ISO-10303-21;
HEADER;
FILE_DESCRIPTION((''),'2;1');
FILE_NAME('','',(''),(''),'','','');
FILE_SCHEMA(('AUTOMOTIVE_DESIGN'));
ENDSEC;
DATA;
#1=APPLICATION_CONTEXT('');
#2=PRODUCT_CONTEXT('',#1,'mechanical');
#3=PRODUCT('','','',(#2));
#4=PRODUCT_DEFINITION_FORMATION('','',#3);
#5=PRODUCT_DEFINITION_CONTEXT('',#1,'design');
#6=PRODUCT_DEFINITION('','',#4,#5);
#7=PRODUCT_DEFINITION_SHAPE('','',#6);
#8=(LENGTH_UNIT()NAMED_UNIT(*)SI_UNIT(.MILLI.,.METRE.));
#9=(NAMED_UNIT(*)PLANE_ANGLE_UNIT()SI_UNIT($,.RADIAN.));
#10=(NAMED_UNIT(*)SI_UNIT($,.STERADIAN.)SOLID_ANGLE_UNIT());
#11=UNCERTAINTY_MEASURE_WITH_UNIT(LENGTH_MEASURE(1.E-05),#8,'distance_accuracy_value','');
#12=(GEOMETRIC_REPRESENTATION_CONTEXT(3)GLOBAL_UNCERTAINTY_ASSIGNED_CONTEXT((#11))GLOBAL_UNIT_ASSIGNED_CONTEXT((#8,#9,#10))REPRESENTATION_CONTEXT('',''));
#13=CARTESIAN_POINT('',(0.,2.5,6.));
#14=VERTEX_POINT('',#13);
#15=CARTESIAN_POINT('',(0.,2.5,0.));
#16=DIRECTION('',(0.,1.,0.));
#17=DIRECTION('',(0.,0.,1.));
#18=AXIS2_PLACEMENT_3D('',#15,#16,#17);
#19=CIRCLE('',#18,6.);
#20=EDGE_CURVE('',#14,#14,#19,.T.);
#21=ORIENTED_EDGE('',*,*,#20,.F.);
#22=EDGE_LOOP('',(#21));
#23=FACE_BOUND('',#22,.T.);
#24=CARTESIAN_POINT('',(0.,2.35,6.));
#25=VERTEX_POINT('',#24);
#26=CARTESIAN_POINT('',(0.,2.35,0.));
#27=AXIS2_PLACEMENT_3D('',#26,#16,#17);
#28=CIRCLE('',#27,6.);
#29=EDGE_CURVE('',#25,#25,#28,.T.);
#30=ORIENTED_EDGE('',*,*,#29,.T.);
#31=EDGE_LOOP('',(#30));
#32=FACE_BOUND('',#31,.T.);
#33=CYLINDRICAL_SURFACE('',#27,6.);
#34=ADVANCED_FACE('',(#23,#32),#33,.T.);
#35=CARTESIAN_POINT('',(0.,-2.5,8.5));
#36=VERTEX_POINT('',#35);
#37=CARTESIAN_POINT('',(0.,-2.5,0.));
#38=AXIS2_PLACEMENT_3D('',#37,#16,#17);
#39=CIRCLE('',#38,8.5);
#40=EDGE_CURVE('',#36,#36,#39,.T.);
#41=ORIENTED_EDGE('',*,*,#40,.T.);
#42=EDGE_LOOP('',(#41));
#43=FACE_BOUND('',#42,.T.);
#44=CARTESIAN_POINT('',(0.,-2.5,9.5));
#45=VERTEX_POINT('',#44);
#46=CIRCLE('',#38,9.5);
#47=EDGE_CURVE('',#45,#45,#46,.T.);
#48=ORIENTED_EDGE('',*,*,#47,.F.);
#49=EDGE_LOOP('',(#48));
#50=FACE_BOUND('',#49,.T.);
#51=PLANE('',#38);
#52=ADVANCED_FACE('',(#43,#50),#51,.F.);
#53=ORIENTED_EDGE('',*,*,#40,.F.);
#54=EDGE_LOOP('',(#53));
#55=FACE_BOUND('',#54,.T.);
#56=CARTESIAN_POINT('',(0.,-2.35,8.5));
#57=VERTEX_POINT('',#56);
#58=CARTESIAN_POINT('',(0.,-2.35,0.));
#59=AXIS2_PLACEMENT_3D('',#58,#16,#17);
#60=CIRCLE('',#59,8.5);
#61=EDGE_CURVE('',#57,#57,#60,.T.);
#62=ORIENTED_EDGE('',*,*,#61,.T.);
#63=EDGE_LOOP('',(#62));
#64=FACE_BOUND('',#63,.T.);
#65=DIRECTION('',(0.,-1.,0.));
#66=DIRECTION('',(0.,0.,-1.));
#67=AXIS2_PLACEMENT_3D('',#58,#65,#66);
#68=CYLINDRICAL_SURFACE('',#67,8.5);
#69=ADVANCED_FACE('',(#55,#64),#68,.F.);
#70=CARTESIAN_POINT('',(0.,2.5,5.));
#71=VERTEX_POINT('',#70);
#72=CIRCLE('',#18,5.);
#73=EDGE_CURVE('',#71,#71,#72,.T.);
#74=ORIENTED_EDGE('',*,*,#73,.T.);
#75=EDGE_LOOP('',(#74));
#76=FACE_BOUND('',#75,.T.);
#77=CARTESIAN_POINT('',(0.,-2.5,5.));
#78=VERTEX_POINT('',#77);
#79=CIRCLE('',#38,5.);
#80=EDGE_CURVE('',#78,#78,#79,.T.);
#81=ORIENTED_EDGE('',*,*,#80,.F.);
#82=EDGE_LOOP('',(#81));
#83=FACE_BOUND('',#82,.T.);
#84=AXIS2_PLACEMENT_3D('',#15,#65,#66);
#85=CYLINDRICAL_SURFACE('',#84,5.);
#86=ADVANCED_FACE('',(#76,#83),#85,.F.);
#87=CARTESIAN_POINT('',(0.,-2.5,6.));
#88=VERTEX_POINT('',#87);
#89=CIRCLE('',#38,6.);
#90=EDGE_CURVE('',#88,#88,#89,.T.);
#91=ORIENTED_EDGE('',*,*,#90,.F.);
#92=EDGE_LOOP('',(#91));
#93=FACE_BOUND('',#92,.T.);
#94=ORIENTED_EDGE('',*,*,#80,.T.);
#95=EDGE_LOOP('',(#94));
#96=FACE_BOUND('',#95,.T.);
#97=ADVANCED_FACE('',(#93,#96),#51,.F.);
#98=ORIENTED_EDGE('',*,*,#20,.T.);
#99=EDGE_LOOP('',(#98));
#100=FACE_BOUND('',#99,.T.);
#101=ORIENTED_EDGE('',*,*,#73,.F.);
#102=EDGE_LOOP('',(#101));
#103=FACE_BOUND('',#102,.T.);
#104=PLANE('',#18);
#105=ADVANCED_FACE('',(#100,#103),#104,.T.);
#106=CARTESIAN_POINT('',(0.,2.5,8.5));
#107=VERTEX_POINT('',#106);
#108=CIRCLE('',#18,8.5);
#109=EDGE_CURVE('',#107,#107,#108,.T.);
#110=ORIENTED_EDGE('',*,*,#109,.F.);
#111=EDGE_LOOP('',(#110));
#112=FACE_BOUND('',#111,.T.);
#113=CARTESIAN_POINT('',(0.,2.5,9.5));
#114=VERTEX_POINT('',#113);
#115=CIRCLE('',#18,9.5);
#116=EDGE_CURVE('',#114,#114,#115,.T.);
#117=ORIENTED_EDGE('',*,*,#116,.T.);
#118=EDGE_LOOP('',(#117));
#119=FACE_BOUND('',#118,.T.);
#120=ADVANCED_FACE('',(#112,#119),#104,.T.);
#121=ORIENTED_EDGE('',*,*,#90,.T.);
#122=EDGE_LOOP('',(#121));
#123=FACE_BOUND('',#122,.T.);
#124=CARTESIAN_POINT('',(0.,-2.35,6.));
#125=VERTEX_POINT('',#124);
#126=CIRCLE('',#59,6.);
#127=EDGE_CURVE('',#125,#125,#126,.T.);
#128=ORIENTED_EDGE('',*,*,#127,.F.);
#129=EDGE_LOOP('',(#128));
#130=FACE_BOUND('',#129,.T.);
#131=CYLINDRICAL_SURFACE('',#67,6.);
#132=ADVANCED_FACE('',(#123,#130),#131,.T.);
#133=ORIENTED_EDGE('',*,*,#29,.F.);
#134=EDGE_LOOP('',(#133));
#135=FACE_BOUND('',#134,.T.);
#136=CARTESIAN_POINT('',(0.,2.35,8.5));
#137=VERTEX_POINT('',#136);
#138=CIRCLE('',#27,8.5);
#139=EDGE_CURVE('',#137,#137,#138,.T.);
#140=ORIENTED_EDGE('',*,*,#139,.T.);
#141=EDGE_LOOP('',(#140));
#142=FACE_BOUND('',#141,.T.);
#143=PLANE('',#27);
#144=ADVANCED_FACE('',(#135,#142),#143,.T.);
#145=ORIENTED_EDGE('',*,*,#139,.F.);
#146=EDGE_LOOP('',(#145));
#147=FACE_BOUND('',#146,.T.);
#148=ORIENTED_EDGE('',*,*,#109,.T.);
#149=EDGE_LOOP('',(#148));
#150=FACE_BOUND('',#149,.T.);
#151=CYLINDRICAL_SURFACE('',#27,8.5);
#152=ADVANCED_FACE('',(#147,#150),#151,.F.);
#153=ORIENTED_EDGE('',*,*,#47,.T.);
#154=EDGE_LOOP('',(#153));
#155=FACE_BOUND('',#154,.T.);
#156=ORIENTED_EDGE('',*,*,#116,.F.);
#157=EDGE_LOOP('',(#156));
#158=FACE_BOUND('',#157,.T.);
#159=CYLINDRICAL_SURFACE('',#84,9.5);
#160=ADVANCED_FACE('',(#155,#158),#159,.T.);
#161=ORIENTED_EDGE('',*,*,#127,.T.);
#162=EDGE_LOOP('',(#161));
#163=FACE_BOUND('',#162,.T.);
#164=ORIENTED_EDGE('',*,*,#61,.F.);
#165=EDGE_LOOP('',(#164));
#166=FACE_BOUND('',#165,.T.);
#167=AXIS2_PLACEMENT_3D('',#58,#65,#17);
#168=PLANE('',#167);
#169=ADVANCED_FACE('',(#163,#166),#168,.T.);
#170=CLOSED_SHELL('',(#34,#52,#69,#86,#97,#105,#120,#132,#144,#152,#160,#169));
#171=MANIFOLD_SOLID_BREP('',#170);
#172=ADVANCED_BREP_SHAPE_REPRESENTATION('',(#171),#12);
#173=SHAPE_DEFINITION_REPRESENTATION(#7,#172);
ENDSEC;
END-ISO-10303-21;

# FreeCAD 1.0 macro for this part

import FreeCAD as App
import Part
import Sketcher
Q = App.Units.Quantity

doc = App.newDocument("Part")
params = doc.addObject("Spreadsheet::Sheet", "Params")
for row, (alias, value) in enumerate([
    ("sketch1_diameter", "19 mm"),
    ("sketch1_diameter2", "10 mm"),
    ("pad1_length", "5 mm"),
    ("sketch2_diameter", "17 mm"),
    ("sketch2_diameter2", "12 mm"),
    ("pocket1_length", "0.15 mm"),
], start=1):
    params.set(f"A{row}", alias)
    params.set(f"B{row}", "=" + value)
    params.setAlias(f"B{row}", alias)

body = doc.addObject("PartDesign::Body", "Body")

sketch1 = doc.addObject("Sketcher::SketchObject", "Sketch")
body.addObject(sketch1)
sketch1.AttachmentSupport = (doc.XZ_Plane, [""])
sketch1.MapMode = "FlatFace"
sketch1.addGeometry([
    Part.Circle(App.Vector(0, 0, 0), App.Vector(0, 0, 1), 9.5),
    Part.Circle(App.Vector(0, 0, 0), App.Vector(0, 0, 1), 5),
], False)
sketch1.addConstraint([
    Sketcher.Constraint("Coincident", 0, 3, -1, 1),
    Sketcher.Constraint("Coincident", 1, 3, -1, 1),
    Sketcher.Constraint("Diameter", 0, Q("19 mm")),
    Sketcher.Constraint("Diameter", 1, Q("10 mm")),
])
sketch1.setExpression("Constraints[2]", "Params.sketch1_diameter")
sketch1.setExpression("Constraints[3]", "Params.sketch1_diameter2")
pad1 = doc.addObject("PartDesign::Pad", "Pad")
body.addObject(pad1)
pad1.Profile = sketch1
pad1.setExpression("Length", "Params.pad1_length")
pad1.Midplane = True

sketch2 = doc.addObject("Sketcher::SketchObject", "Sketch001")
body.addObject(sketch2)
sketch2.AttachmentSupport = (doc.XZ_Plane, [""])
sketch2.MapMode = "FlatFace"
sketch2.AttachmentOffset = App.Placement(App.Vector(0, 0, -2.5), App.Rotation())
sketch2.addGeometry([
    Part.Circle(App.Vector(0, 0, 0), App.Vector(0, 0, 1), 8.5),
    Part.Circle(App.Vector(0, 0, 0), App.Vector(0, 0, 1), 6),
], False)
sketch2.addConstraint([
    Sketcher.Constraint("Coincident", 0, 3, -1, 1),
    Sketcher.Constraint("Coincident", 1, 3, -1, 1),
    Sketcher.Constraint("Diameter", 0, Q("17 mm")),
    Sketcher.Constraint("Diameter", 1, Q("12 mm")),
])
sketch2.setExpression("Constraints[2]", "Params.sketch2_diameter")
sketch2.setExpression("Constraints[3]", "Params.sketch2_diameter2")
pocket1 = doc.addObject("PartDesign::Pocket", "Pocket")
body.addObject(pocket1)
pocket1.Profile = sketch2
pocket1.setExpression("Length", "Params.pocket1_length")
pocket1.Reversed = True
doc.recompute()

mirrored = doc.addObject("PartDesign::Mirrored", "Mirrored")
body.addObject(mirrored)
mirrored.Originals = [pocket1]
mirrored.MirrorPlane = (doc.XZ_Plane, [""])
body.Tip = mirrored

doc.recompute()
